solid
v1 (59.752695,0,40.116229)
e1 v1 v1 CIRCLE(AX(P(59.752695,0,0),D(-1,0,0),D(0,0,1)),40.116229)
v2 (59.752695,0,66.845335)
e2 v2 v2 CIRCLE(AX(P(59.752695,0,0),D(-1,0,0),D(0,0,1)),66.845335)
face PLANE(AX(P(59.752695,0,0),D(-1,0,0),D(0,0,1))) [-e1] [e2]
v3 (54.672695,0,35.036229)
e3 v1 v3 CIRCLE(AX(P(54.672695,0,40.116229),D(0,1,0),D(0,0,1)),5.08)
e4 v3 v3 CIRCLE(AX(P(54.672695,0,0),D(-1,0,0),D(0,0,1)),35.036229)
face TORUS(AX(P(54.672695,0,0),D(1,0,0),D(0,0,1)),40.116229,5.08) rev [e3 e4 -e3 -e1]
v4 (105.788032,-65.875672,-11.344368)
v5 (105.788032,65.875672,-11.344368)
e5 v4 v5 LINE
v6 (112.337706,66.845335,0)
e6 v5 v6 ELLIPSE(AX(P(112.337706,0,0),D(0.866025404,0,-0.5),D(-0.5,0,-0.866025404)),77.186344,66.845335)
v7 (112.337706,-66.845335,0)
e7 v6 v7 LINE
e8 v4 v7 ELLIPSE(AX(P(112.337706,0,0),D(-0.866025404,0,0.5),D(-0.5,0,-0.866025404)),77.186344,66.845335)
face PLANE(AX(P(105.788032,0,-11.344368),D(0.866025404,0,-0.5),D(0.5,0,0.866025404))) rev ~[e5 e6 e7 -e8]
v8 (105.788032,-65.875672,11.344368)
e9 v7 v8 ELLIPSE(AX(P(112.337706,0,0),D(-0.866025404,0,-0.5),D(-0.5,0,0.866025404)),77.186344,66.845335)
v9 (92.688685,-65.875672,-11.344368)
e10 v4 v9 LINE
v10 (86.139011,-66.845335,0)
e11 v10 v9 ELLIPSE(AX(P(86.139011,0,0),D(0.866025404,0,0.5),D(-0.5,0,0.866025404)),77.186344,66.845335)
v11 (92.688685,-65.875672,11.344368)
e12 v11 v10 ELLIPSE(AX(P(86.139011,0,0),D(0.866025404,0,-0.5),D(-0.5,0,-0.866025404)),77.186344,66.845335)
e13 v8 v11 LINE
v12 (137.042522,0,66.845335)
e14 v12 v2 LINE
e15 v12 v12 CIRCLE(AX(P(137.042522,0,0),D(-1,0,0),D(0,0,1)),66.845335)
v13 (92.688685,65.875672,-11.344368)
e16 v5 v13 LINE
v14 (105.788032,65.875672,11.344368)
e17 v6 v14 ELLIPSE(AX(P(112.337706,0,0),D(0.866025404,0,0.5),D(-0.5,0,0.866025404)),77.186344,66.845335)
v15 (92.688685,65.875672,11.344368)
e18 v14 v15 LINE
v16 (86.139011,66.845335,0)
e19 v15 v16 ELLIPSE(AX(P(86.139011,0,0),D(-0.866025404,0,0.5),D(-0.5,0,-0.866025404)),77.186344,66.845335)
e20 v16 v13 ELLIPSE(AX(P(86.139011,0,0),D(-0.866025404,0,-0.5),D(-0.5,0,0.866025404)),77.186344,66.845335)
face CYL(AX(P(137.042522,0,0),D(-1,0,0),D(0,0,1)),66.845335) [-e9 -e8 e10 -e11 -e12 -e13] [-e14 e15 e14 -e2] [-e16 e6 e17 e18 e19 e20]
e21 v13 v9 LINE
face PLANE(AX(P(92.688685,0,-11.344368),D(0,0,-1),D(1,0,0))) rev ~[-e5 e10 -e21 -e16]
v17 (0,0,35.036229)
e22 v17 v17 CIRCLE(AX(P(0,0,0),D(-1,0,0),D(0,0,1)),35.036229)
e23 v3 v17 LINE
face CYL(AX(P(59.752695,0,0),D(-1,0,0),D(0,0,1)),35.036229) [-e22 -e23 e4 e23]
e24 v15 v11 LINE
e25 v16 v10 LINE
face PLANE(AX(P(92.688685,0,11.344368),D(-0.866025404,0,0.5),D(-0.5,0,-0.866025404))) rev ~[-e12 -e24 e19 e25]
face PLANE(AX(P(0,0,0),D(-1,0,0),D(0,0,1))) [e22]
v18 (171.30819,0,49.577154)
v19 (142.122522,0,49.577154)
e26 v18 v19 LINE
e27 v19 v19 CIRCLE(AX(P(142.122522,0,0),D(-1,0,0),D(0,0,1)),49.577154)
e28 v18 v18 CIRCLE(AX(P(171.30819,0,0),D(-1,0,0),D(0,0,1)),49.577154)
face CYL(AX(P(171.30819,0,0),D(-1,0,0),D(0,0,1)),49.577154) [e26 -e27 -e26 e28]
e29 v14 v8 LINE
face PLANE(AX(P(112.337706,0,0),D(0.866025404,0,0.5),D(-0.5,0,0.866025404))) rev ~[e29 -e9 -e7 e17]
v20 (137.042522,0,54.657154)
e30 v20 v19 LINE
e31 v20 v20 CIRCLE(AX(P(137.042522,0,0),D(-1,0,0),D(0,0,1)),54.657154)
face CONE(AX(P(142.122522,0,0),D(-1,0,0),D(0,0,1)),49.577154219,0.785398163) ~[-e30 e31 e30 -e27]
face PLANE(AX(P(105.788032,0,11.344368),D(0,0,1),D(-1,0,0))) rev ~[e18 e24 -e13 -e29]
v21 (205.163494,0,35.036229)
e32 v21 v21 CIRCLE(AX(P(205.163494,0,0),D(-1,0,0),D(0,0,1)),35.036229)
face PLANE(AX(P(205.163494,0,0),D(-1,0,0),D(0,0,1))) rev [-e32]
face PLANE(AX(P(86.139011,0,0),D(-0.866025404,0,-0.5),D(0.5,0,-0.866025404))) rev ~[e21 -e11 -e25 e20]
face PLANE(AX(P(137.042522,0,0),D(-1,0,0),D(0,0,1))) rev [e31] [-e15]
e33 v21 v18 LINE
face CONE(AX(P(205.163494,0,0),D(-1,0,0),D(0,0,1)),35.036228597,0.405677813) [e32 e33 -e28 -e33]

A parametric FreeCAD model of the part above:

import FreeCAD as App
import Part
import Sketcher

V = App.Vector
Q = App.Units.Quantity


def edges_at(feature, points):
    """Names of the edges that pass closest to the given points."""
    edges = feature.Shape.Edges
    near = lambda p: min(range(len(edges)), key=lambda i: edges[i].distToShape(Part.Vertex(*p))[0])
    return sorted({f"Edge{near(p) + 1}" for p in points})

doc = App.newDocument("Part")
body = doc.addObject("PartDesign::Body", "Body")

sketch1 = body.newObject("Sketcher::SketchObject", "Sketch")
sketch1.AttachmentSupport = (doc.getObject("XZ_Plane"), [""])
sketch1.MapMode = "FlatFace"
sketch1.addGeometry([
    Part.LineSegment(V(0, 35.036229, 0), V(0, 0, 0)),
    Part.LineSegment(V(0, 0, 0), V(205.163494, 0, 0)),
    Part.LineSegment(V(205.163494, 0, 0), V(205.163494, 35.036229, 0)),
    Part.LineSegment(V(205.163494, 35.036229, 0), V(171.30819, 49.577154, 0)),
    Part.LineSegment(V(171.30819, 49.577154, 0), V(137.042522, 49.577154, 0)),
    Part.LineSegment(V(137.042522, 49.577154, 0), V(137.042522, 66.845335, 0)),
    Part.LineSegment(V(137.042522, 66.845335, 0), V(59.752695, 66.845335, 0)),
    Part.LineSegment(V(59.752695, 66.845335, 0), V(59.752695, 35.036229, 0)),
    Part.LineSegment(V(59.752695, 35.036229, 0), V(0, 35.036229, 0)),
], False)
sketch1.addConstraint([
    Sketcher.Constraint("Coincident", 0, 2, 1, 1),
    Sketcher.Constraint("Coincident", 1, 2, 2, 1),
    Sketcher.Constraint("Coincident", 2, 2, 3, 1),
    Sketcher.Constraint("Coincident", 3, 2, 4, 1),
    Sketcher.Constraint("Coincident", 4, 2, 5, 1),
    Sketcher.Constraint("Coincident", 5, 2, 6, 1),
    Sketcher.Constraint("Coincident", 6, 2, 7, 1),
    Sketcher.Constraint("Coincident", 7, 2, 8, 1),
    Sketcher.Constraint("Coincident", 8, 2, 0, 1),
    Sketcher.Constraint("Vertical", 0),
    Sketcher.Constraint("Horizontal", 1),
    Sketcher.Constraint("Vertical", 2),
    Sketcher.Constraint("Horizontal", 4),
    Sketcher.Constraint("Vertical", 5),
    Sketcher.Constraint("Horizontal", 6),
    Sketcher.Constraint("Vertical", 7),
    Sketcher.Constraint("Horizontal", 8),
    Sketcher.Constraint("Coincident", 0, 2, -1, 1),
    Sketcher.Constraint("Horizontal", 2, 2, 7, 2),
    Sketcher.Constraint("DistanceY", 0, 2, 0, 1, 35.036229),
    Sketcher.Constraint("DistanceY", 5, 1, 5, 2, 17.268181),
    Sketcher.Constraint("DistanceX", 6, 2, 2, 2, 145.410798),
    Sketcher.Constraint("DistanceX", 1, 1, 1, 2, 205.163494),
    Sketcher.Constraint("DistanceX", 4, 2, 4, 1, 34.265667),
    Sketcher.Constraint("DistanceX", 6, 2, 6, 1, 77.289827),
    Sketcher.Constraint("DistanceY", 7, 2, 7, 1, 31.809106),
])
revolution = body.newObject("PartDesign::Revolution", "Revolution")
revolution.Profile = sketch1
revolution.ReferenceAxis = (sketch1, ["H_Axis"])
revolution.Angle = 360
doc.recompute()

fillet = body.newObject("PartDesign::Fillet", "Fillet")
fillet.Base = (revolution, edges_at(revolution, [(59.753, 0, -35.036)]))
fillet.Radius = Q("0.2 in")
doc.recompute()

chamfer = body.newObject("PartDesign::Chamfer", "Chamfer")
chamfer.Base = (fillet, edges_at(fillet, [(137.043, 0, -49.577)]))
chamfer.Size = Q("0.2 in")

sketch2 = body.newObject("Sketcher::SketchObject", "Sketch001")
sketch2.AttachmentSupport = (doc.getObject("XZ_Plane"), [""])
sketch2.MapMode = "FlatFace"
sketch2.addGeometry([
    Part.LineSegment(V(92.688685, -11.344368, 0), V(105.788032, -11.344368, 0)),
    Part.LineSegment(V(105.788032, -11.344368, 0), V(112.337706, 0, 0)),
    Part.LineSegment(V(112.337706, 0, 0), V(105.788032, 11.344368, 0)),
    Part.LineSegment(V(105.788032, 11.344368, 0), V(92.688685, 11.344368, 0)),
    Part.LineSegment(V(92.688685, 11.344368, 0), V(86.139011, 0, 0)),
    Part.LineSegment(V(86.139011, 0, 0), V(92.688685, -11.344368, 0)),
], False)
sketch2.addConstraint([
    Sketcher.Constraint("Coincident", 0, 2, 1, 1),
    Sketcher.Constraint("Coincident", 1, 2, 2, 1),
    Sketcher.Constraint("Coincident", 2, 2, 3, 1),
    Sketcher.Constraint("Coincident", 3, 2, 4, 1),
    Sketcher.Constraint("Coincident", 4, 2, 5, 1),
    Sketcher.Constraint("Coincident", 5, 2, 0, 1),
    Sketcher.Constraint("Horizontal", 0),
    Sketcher.Constraint("Horizontal", 3),
    Sketcher.Constraint("Symmetric", 0, 2, 2, 2, -1),
    Sketcher.Constraint("PointOnObject", 1, 2, -1),
    Sketcher.Constraint("PointOnObject", 4, 2, -1),
    Sketcher.Constraint("Parallel", 1, 4),
    Sketcher.Constraint("Parallel", 2, 5),
    Sketcher.Constraint("Angle", 1, Q("60 deg")),
    Sketcher.Constraint("DistanceX", 0, 1, 0, 2, 13.099347),
    Sketcher.Constraint("DistanceX", -1, 1, 4, 2, 86.139011),
    Sketcher.Constraint("DistanceX", 3, 2, 1, 2, 19.649021),
])
pocket1 = body.newObject("PartDesign::Pocket", "Pocket")
pocket1.Profile = sketch2
pocket1.Type = "ThroughAll"
pocket1.Midplane = True

doc.recompute()
